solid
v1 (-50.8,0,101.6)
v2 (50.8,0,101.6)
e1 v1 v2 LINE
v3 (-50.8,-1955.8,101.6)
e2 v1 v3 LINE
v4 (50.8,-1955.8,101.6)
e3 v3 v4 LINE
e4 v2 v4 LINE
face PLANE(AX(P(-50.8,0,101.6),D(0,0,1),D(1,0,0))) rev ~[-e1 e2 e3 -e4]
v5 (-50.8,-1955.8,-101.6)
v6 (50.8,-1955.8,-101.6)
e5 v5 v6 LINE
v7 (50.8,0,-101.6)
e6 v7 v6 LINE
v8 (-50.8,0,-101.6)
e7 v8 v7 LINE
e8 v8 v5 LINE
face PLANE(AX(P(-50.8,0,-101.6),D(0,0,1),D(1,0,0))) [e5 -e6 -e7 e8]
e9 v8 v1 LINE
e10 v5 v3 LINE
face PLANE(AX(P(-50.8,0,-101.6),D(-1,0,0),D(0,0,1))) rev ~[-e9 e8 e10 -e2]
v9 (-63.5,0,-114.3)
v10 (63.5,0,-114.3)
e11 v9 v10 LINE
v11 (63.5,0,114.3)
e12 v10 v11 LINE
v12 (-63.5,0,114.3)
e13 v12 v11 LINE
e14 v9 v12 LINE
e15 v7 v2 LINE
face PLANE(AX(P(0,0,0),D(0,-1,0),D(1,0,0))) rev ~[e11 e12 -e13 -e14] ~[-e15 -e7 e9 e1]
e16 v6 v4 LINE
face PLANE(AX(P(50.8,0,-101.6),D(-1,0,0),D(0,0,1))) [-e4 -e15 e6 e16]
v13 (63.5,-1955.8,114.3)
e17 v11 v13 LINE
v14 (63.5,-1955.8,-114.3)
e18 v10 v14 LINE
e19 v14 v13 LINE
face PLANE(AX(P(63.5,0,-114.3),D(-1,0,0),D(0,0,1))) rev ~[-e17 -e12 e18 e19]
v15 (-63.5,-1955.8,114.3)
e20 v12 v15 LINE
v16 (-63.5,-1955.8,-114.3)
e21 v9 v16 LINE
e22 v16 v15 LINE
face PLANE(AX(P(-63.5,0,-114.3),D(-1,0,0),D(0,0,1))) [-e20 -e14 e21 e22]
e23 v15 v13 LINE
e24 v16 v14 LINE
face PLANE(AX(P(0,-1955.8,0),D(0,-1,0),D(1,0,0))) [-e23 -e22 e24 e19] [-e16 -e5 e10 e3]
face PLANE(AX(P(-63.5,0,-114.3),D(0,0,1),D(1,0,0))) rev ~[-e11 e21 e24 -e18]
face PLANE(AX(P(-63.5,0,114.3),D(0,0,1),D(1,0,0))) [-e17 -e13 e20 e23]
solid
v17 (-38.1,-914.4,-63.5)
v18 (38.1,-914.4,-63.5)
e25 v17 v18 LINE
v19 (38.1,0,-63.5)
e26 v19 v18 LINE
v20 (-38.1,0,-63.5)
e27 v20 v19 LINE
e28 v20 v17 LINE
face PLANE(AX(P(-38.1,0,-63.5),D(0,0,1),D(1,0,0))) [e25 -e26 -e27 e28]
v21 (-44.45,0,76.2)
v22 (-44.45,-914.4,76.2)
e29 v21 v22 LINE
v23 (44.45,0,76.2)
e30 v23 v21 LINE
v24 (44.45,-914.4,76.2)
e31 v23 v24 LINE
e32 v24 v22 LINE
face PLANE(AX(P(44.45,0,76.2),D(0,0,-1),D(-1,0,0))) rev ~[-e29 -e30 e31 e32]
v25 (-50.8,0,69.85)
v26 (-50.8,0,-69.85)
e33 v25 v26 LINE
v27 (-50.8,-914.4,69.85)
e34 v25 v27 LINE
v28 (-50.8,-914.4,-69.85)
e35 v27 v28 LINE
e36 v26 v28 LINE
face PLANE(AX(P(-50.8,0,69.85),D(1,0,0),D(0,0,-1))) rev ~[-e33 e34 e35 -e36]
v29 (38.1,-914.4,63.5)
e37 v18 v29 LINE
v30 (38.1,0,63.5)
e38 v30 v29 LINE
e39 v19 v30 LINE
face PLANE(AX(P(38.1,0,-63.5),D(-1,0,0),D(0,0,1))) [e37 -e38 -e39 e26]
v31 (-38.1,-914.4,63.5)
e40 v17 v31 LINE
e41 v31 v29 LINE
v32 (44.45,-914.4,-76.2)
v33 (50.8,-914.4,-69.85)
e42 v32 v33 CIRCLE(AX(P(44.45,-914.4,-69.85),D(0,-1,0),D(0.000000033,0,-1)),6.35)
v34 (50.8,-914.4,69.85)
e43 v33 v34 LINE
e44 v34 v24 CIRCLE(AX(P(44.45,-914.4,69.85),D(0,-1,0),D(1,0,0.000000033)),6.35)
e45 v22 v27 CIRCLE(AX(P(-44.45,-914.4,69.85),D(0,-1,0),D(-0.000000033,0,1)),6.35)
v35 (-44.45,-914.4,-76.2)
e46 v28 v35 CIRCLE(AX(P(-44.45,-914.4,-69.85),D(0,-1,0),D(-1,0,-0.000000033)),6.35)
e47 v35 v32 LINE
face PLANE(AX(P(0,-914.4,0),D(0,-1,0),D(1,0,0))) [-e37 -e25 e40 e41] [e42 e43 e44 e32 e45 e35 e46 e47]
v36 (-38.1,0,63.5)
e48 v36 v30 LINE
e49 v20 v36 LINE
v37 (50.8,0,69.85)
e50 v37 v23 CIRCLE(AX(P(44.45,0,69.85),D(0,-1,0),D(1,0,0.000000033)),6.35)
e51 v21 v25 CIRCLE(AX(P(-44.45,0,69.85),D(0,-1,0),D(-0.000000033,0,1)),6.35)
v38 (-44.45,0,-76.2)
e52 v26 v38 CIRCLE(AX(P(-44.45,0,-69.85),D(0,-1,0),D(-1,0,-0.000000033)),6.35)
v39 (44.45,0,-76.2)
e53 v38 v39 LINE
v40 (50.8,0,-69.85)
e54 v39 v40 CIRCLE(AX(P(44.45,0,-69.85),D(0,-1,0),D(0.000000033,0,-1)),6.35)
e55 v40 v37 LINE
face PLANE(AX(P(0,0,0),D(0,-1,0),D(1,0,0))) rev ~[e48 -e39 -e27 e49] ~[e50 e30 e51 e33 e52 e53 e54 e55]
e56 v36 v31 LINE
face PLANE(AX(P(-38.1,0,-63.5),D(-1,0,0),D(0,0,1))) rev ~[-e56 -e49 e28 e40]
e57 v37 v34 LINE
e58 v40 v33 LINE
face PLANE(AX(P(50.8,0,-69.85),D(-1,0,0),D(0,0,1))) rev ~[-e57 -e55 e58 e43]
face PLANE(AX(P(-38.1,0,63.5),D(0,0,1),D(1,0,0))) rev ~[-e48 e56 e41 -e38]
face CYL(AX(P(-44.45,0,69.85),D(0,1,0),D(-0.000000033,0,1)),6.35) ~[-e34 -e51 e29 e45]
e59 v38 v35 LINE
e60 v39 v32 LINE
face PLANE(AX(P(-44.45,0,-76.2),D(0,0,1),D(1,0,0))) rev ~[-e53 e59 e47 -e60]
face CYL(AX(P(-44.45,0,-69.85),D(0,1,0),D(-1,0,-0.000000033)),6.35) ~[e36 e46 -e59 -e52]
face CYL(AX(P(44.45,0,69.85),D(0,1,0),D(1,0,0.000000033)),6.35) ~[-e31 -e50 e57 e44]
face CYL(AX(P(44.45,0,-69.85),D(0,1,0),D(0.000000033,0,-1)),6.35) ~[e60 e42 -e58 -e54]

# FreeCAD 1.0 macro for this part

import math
import FreeCAD as App
import Part
import Sketcher
from FreeCAD import Vector
Q = App.Units.Quantity


def add_polygon(sketch, points):
    """Adds a closed chain of lines whose ends are joined by coincident constraints."""
    first, n = sketch.GeometryCount, len(points)
    for a, b in zip(points, points[1:] + points[:1]):
        sketch.addGeometry(Part.LineSegment(App.Vector(*a, 0), App.Vector(*b, 0)), False)
    for i in range(n):
        sketch.addConstraint(Sketcher.Constraint("Coincident", first + i, 2, first + (i + 1) % n, 1))

doc = App.newDocument("Part")
body = doc.addObject("PartDesign::Body", "Body")

# Sketch on XZ plane
sketch1 = body.newObject("Sketcher::SketchObject", "Sketch")
sketch1.AttachmentSupport = (doc.getObject("XZ_Plane"), [""])
sketch1.MapMode = "FlatFace"
add_polygon(sketch1, [(-64, 114), (-64, -114), (64, -114), (64, 114)])  # lines 0-3
add_polygon(sketch1, [(51, -102), (-51, -102), (-51, 102), (51, 102)])  # lines 4-7
sketch1.addConstraint(Sketcher.Constraint("Vertical", 0))
sketch1.addConstraint(Sketcher.Constraint("Horizontal", 1))
sketch1.addConstraint(Sketcher.Constraint("Vertical", 2))
sketch1.addConstraint(Sketcher.Constraint("Horizontal", 3))
sketch1.addConstraint(Sketcher.Constraint("Horizontal", 4))
sketch1.addConstraint(Sketcher.Constraint("Vertical", 5))
sketch1.addConstraint(Sketcher.Constraint("Horizontal", 6))
sketch1.addConstraint(Sketcher.Constraint("Vertical", 7))
sketch1.addConstraint(Sketcher.Constraint("Symmetric", 0, 2, 2, 2, -1, 1))
sketch1.addConstraint(Sketcher.Constraint("Symmetric", 4, 2, 6, 2, -1, 1))
sketch1.addConstraint(Sketcher.Constraint("DistanceX", 1, 1, 1, 2, Q("5 in")))
sketch1.addConstraint(Sketcher.Constraint("DistanceX", 4, 2, 4, 1, Q("4 in")))
sketch1.addConstraint(Sketcher.Constraint("DistanceY", 0, 2, 0, 1, Q("9 in")))
sketch1.addConstraint(Sketcher.Constraint("DistanceY", 5, 1, 5, 2, Q("8 in")))
pad1 = body.newObject("PartDesign::Pad", "Pad")
pad1.Profile = sketch1
pad1.Length = Q("77 in")
body2 = doc.addObject("PartDesign::Body", "Body001")

# Sketch on XZ plane
sketch2 = body2.newObject("Sketcher::SketchObject", "Sketch001")
sketch2.AttachmentSupport = (doc.getObject("XZ_Plane001"), [""])
sketch2.MapMode = "FlatFace"
sketch2.addGeometry(Part.LineSegment(Vector(-44, -76, 0), Vector(44, -76, 0)), False)  # 0
sketch2.addGeometry(Part.ArcOfCircle(Part.Circle(Vector(44, -70, 0), Vector(0, 0, 1), 6), math.radians(-90), math.radians(0)), False)  # 1
sketch2.addGeometry(Part.LineSegment(Vector(51, -70, 0), Vector(51, 70, 0)), False)  # 2
sketch2.addGeometry(Part.ArcOfCircle(Part.Circle(Vector(44, 70, 0), Vector(0, 0, 1), 6), math.radians(0), math.radians(90)), False)  # 3
sketch2.addGeometry(Part.LineSegment(Vector(44, 76, 0), Vector(-44, 76, 0)), False)  # 4
sketch2.addGeometry(Part.ArcOfCircle(Part.Circle(Vector(-44, 70, 0), Vector(0, 0, 1), 6), math.radians(90), math.radians(180)), False)  # 5
sketch2.addGeometry(Part.LineSegment(Vector(-51, 70, 0), Vector(-51, -70, 0)), False)  # 6
sketch2.addGeometry(Part.ArcOfCircle(Part.Circle(Vector(-44, -70, 0), Vector(0, 0, 1), 6), math.radians(-180), math.radians(-90)), False)  # 7
add_polygon(sketch2, [(38, -64), (-38, -64), (-38, 64), (38, 64)])  # lines 8-11
sketch2.addConstraint(Sketcher.Constraint("Tangent", 0, 2, 1, 1))
sketch2.addConstraint(Sketcher.Constraint("Tangent", 1, 2, 2, 1))
sketch2.addConstraint(Sketcher.Constraint("Tangent", 2, 2, 3, 1))
sketch2.addConstraint(Sketcher.Constraint("Tangent", 3, 2, 4, 1))
sketch2.addConstraint(Sketcher.Constraint("Tangent", 4, 2, 5, 1))
sketch2.addConstraint(Sketcher.Constraint("Tangent", 5, 2, 6, 1))
sketch2.addConstraint(Sketcher.Constraint("Tangent", 6, 2, 7, 1))
sketch2.addConstraint(Sketcher.Constraint("Tangent", 7, 2, 0, 1))
sketch2.addConstraint(Sketcher.Constraint("Horizontal", 0))
sketch2.addConstraint(Sketcher.Constraint("Vertical", 2))
sketch2.addConstraint(Sketcher.Constraint("Horizontal", 4))
sketch2.addConstraint(Sketcher.Constraint("Vertical", 6))
sketch2.addConstraint(Sketcher.Constraint("Horizontal", 8))
sketch2.addConstraint(Sketcher.Constraint("Vertical", 9))
sketch2.addConstraint(Sketcher.Constraint("Horizontal", 10))
sketch2.addConstraint(Sketcher.Constraint("Vertical", 11))
sketch2.addConstraint(Sketcher.Constraint("Equal", 1, 3))
sketch2.addConstraint(Sketcher.Constraint("Equal", 3, 5))
sketch2.addConstraint(Sketcher.Constraint("Equal", 5, 7))
sketch2.addConstraint(Sketcher.Constraint("Symmetric", 1, 3, 5, 3, -1, 1))
sketch2.addConstraint(Sketcher.Constraint("Symmetric", 8, 2, 10, 2, -1, 1))
sketch2.addConstraint(Sketcher.Constraint("DistanceX", 8, 2, 8, 1, Q("3 in")))
sketch2.addConstraint(Sketcher.Constraint("DistanceY", 9, 1, 9, 2, Q("5 in")))
sketch2.addConstraint(Sketcher.Constraint("Radius", 1, Q("0.25 in")))
sketch2.addConstraint(Sketcher.Constraint("DistanceX", 0, 1, 0, 2, Q("3.5 in")))
sketch2.addConstraint(Sketcher.Constraint("DistanceY", 2, 1, 2, 2, Q("5.5 in")))
pad2 = body2.newObject("PartDesign::Pad", "Pad001")
pad2.Profile = sketch2
pad2.Length = Q("36 in")

doc.recompute()
